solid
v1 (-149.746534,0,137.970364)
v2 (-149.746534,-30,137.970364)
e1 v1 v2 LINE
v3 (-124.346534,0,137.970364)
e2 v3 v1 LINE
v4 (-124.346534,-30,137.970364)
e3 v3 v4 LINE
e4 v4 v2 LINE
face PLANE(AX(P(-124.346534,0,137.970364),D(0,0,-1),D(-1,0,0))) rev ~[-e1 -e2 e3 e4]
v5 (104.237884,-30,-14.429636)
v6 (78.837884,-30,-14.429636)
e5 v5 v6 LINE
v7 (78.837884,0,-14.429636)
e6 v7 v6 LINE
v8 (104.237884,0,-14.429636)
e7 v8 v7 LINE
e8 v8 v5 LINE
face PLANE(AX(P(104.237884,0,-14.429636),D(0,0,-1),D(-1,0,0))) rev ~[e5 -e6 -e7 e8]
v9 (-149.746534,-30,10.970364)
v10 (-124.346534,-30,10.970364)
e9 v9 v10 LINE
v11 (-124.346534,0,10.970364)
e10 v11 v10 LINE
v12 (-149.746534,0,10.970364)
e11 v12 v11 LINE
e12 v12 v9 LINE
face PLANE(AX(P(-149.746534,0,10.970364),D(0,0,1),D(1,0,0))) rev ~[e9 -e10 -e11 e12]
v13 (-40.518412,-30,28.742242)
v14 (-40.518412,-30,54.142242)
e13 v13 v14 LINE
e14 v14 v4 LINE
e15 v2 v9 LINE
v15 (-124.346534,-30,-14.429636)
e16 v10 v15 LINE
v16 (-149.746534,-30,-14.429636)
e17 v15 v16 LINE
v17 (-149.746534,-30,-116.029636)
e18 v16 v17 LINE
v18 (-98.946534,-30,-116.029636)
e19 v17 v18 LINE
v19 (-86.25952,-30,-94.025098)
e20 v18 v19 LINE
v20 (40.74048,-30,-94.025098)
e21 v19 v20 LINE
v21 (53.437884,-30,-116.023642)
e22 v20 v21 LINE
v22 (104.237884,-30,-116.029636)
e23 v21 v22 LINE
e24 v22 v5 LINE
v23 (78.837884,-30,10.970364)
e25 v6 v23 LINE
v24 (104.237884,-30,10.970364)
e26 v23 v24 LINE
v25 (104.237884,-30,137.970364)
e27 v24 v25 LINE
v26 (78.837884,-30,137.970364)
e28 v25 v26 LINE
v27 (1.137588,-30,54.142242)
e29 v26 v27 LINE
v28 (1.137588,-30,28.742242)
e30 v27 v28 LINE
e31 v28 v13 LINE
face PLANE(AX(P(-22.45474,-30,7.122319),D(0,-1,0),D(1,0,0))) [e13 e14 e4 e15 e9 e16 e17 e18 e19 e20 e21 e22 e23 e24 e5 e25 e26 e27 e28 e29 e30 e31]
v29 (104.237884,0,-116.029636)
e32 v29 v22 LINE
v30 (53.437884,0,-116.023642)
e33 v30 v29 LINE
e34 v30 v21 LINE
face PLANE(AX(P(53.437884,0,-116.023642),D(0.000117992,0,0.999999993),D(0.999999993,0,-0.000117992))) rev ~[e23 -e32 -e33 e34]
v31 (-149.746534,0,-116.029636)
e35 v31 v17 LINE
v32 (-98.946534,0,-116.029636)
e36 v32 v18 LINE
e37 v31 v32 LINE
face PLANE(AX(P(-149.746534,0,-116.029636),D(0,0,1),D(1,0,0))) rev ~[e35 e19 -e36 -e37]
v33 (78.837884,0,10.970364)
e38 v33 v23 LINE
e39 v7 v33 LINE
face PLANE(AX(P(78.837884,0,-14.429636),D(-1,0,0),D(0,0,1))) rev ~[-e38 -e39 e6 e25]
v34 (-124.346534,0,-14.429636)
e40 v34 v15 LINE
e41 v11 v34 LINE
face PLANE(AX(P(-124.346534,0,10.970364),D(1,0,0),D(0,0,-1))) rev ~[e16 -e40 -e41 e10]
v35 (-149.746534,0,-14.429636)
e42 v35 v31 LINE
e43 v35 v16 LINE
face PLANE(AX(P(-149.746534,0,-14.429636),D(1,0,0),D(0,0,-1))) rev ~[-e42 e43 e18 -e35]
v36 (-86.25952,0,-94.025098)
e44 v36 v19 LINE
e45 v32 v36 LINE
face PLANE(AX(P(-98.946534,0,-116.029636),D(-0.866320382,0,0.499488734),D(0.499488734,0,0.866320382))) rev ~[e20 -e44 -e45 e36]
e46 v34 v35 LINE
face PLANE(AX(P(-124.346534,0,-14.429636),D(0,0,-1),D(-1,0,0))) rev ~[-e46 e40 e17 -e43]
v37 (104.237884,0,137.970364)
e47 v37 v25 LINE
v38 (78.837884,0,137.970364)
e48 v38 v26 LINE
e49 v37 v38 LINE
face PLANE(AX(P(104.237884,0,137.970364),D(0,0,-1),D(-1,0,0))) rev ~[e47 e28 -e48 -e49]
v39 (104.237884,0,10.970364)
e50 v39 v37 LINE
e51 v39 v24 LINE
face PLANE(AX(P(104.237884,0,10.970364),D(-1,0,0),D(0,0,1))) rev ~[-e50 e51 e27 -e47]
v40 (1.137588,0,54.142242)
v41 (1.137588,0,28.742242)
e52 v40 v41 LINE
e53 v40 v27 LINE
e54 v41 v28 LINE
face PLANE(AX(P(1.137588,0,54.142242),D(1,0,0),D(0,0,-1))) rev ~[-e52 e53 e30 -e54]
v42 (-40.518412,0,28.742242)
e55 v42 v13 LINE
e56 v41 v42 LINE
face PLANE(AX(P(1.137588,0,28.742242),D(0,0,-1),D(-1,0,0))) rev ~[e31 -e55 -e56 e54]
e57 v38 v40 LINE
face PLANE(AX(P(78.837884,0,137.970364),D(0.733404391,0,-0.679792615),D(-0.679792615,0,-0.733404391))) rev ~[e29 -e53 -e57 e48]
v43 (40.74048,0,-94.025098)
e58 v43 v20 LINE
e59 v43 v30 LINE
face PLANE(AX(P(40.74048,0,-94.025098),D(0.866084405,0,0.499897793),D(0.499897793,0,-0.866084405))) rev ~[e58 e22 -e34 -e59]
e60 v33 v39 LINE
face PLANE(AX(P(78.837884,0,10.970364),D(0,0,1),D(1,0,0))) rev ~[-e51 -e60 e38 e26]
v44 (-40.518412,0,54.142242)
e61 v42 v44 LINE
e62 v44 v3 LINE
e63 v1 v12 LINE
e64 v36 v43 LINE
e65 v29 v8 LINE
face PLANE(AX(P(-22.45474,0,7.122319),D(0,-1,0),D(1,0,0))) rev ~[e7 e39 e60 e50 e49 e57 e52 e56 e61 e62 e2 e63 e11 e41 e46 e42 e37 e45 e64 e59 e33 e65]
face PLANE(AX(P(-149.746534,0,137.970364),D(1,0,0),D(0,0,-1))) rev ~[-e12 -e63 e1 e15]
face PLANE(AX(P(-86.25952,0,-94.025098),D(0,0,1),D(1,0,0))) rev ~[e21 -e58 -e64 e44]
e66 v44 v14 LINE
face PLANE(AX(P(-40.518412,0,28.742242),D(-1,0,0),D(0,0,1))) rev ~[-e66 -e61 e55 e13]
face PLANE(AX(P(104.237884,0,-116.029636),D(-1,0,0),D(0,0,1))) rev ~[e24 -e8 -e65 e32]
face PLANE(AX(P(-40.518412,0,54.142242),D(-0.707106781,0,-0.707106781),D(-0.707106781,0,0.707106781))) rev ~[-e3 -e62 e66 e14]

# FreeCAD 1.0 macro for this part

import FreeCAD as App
import Part
import Sketcher
Q = App.Units.Quantity

doc = App.newDocument("Part")
body = doc.addObject("PartDesign::Body", "Body")

# Sketch on XZ plane
sketch1 = doc.addObject("Sketcher::SketchObject", "Sketch")
body.addObject(sketch1)
sketch1.AttachmentSupport = (doc.XZ_Plane, [""])
sketch1.MapMode = "FlatFace"
sketch1.addGeometry([
    Part.LineSegment(App.Vector(-124, 138, 0), App.Vector(-150, 138, 0)),  # 0
    Part.LineSegment(App.Vector(-150, 138, 0), App.Vector(-150, 11, 0)),  # 1
    Part.LineSegment(App.Vector(-150, 11, 0), App.Vector(-124, 11, 0)),  # 2
    Part.LineSegment(App.Vector(-124, 11, 0), App.Vector(-124, -14, 0)),  # 3
    Part.LineSegment(App.Vector(-124, -14, 0), App.Vector(-150, -14, 0)),  # 4
    Part.LineSegment(App.Vector(-150, -14, 0), App.Vector(-150, -116, 0)),  # 5
    Part.LineSegment(App.Vector(-150, -116, 0), App.Vector(-99, -116, 0)),  # 6
    Part.LineSegment(App.Vector(-99, -116, 0), App.Vector(-86, -94, 0)),  # 7
    Part.LineSegment(App.Vector(-86, -94, 0), App.Vector(41, -94, 0)),  # 8
    Part.LineSegment(App.Vector(41, -94, 0), App.Vector(53, -116, 0)),  # 9
    Part.LineSegment(App.Vector(53, -116, 0), App.Vector(104, -116, 0)),  # 10
    Part.LineSegment(App.Vector(104, -116, 0), App.Vector(104, -14, 0)),  # 11
    Part.LineSegment(App.Vector(104, -14, 0), App.Vector(79, -14, 0)),  # 12
    Part.LineSegment(App.Vector(79, -14, 0), App.Vector(79, 11, 0)),  # 13
    Part.LineSegment(App.Vector(79, 11, 0), App.Vector(104, 11, 0)),  # 14
    Part.LineSegment(App.Vector(104, 11, 0), App.Vector(104, 138, 0)),  # 15
    Part.LineSegment(App.Vector(104, 138, 0), App.Vector(79, 138, 0)),  # 16
    Part.LineSegment(App.Vector(79, 138, 0), App.Vector(1, 54, 0)),  # 17
    Part.LineSegment(App.Vector(1, 54, 0), App.Vector(1, 29, 0)),  # 18
    Part.LineSegment(App.Vector(1, 29, 0), App.Vector(-41, 29, 0)),  # 19
    Part.LineSegment(App.Vector(-41, 29, 0), App.Vector(-41, 54, 0)),  # 20
    Part.LineSegment(App.Vector(-41, 54, 0), App.Vector(-124, 138, 0)),  # 21
], False)
sketch1.addConstraint([
    Sketcher.Constraint("Coincident", 0, 2, 1, 1),
    Sketcher.Constraint("Coincident", 1, 2, 2, 1),
    Sketcher.Constraint("Coincident", 2, 2, 3, 1),
    Sketcher.Constraint("Coincident", 3, 2, 4, 1),
    Sketcher.Constraint("Coincident", 4, 2, 5, 1),
    Sketcher.Constraint("Coincident", 5, 2, 6, 1),
    Sketcher.Constraint("Coincident", 6, 2, 7, 1),
    Sketcher.Constraint("Coincident", 7, 2, 8, 1),
    Sketcher.Constraint("Coincident", 8, 2, 9, 1),
    Sketcher.Constraint("Coincident", 9, 2, 10, 1),
    Sketcher.Constraint("Coincident", 10, 2, 11, 1),
    Sketcher.Constraint("Coincident", 11, 2, 12, 1),
    Sketcher.Constraint("Coincident", 12, 2, 13, 1),
    Sketcher.Constraint("Coincident", 13, 2, 14, 1),
    Sketcher.Constraint("Coincident", 14, 2, 15, 1),
    Sketcher.Constraint("Coincident", 15, 2, 16, 1),
    Sketcher.Constraint("Coincident", 16, 2, 17, 1),
    Sketcher.Constraint("Coincident", 17, 2, 18, 1),
    Sketcher.Constraint("Coincident", 18, 2, 19, 1),
    Sketcher.Constraint("Coincident", 19, 2, 20, 1),
    Sketcher.Constraint("Coincident", 20, 2, 21, 1),
    Sketcher.Constraint("Coincident", 21, 2, 0, 1),
    Sketcher.Constraint("Horizontal", 0),
    Sketcher.Constraint("Vertical", 1),
    Sketcher.Constraint("Horizontal", 2),
    Sketcher.Constraint("Vertical", 3),
    Sketcher.Constraint("Horizontal", 4),
    Sketcher.Constraint("Vertical", 5),
    Sketcher.Constraint("Horizontal", 6),
    Sketcher.Constraint("Horizontal", 8),
    Sketcher.Constraint("Vertical", 11),
    Sketcher.Constraint("Horizontal", 12),
    Sketcher.Constraint("Vertical", 13),
    Sketcher.Constraint("Horizontal", 14),
    Sketcher.Constraint("Vertical", 15),
    Sketcher.Constraint("Horizontal", 16),
    Sketcher.Constraint("Vertical", 18),
    Sketcher.Constraint("Horizontal", 19),
    Sketcher.Constraint("Vertical", 20),
    Sketcher.Constraint("Horizontal", 6, 2, 10, 2),
    Sketcher.Constraint("Horizontal", 4, 2, 11, 2),
    Sketcher.Constraint("Horizontal", 2, 2, 13, 2),
    Sketcher.Constraint("Horizontal", 0, 2, 15, 2),
    Sketcher.Constraint("Horizontal", 17, 2, 20, 2),
    Sketcher.Constraint("Vertical", 1, 2, 4, 2),
    Sketcher.Constraint("Vertical", 11, 2, 14, 2),
    Sketcher.Constraint("Vertical", 13, 2, 16, 2),
    Sketcher.Constraint("Vertical", 3, 2, 21, 2),
    Sketcher.Constraint("Equal", 4, 12),
    Sketcher.Constraint("Equal", 8, 1),
    Sketcher.Constraint("Equal", 16, 3),
    Sketcher.Constraint("Equal", 13, 18),
    Sketcher.Constraint("Equal", 7, 9),
    Sketcher.Constraint("DistanceX", 0, 2, 0, 1, Q("1 in")),
    Sketcher.Constraint("DistanceX", 6, 1, 6, 2, Q("2 in")),
    Sketcher.Constraint("DistanceX", 8, 1, 8, 2, Q("5 in")),
    Sketcher.Constraint("DistanceY", 5, 2, 5, 1, Q("4 in")),
    Sketcher.Constraint("Distance", 7, Q("1 in")),
    Sketcher.Constraint("Distance", 10, Q("2 in")),
    Sketcher.Constraint("Angle", 21, Q("135 deg")),
    Sketcher.Constraint("Distance", 17, Q("4.5 in")),
    Sketcher.Constraint("DistanceX", 19, 2, 19, 1, Q("1.64 in")),
    Sketcher.Constraint("DistanceY", 7, 2, -1, 1, Q("94.025098 mm")),
    Sketcher.Constraint("DistanceX", 7, 2, -1, 1, Q("86.25952 mm")),
    Sketcher.Constraint("DistanceY", 9, 2, -1, 1, Q("116.023642 mm")),
    Sketcher.Constraint("DistanceX", 19, 2, -1, 1, Q("40.518412 mm")),
])
pad1 = doc.addObject("PartDesign::Pad", "Pad")
body.addObject(pad1)
pad1.Profile = sketch1
pad1.Length = 30

doc.recompute()
